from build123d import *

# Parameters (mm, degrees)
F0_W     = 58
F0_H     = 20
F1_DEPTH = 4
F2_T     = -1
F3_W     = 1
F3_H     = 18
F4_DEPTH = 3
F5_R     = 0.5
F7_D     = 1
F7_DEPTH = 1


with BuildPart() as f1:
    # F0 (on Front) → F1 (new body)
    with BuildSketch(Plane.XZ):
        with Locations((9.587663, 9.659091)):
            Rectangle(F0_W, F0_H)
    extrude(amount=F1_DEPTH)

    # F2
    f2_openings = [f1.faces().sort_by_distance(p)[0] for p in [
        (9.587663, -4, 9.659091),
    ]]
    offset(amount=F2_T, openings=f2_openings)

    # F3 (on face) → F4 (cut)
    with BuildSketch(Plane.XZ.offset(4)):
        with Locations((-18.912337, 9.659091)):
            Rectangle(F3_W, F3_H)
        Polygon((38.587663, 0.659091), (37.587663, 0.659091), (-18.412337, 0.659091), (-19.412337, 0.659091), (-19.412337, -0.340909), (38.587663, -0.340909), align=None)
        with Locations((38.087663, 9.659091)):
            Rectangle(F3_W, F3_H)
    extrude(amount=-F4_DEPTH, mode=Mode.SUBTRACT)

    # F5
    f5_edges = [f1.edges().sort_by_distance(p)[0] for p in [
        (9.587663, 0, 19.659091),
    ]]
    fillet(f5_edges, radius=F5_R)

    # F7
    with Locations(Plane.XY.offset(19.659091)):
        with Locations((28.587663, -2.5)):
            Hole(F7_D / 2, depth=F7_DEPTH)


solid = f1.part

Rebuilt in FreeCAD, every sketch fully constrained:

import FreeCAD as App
import Part
import Sketcher
from FreeCAD import Vector
Q = App.Units.Quantity


def edges_at(feature, points):
    """Names of the edges that pass closest to the given points."""
    edges = feature.Shape.Edges
    near = lambda p: min(range(len(edges)), key=lambda i: edges[i].distToShape(Part.Vertex(*p))[0])
    return sorted({f"Edge{near(p) + 1}" for p in points})


def faces_at(feature, points):
    """Names of the faces that lie closest to the given points."""
    faces = feature.Shape.Faces
    near = lambda p: min(range(len(faces)), key=lambda i: faces[i].distToShape(Part.Vertex(*p))[0])
    return sorted({f"Face{near(p) + 1}" for p in points})


def add_polygon(sketch, points):
    """Adds a closed chain of lines whose ends are joined by coincident constraints."""
    first, n = sketch.GeometryCount, len(points)
    for a, b in zip(points, points[1:] + points[:1]):
        sketch.addGeometry(Part.LineSegment(App.Vector(*a, 0), App.Vector(*b, 0)), False)
    for i in range(n):
        sketch.addConstraint(Sketcher.Constraint("Coincident", first + i, 2, first + (i + 1) % n, 1))

doc = App.newDocument("Part")
body = doc.addObject("PartDesign::Body", "Body")

# Sketch on XZ plane
sketch1 = body.newObject("Sketcher::SketchObject", "Sketch")
sketch1.AttachmentSupport = (doc.getObject("XZ_Plane"), [""])
sketch1.MapMode = "FlatFace"
add_polygon(sketch1, [(-19, 20), (-19, 0), (39, 0), (39, 20)])  # lines 0-3
sketch1.addConstraint(Sketcher.Constraint("Vertical", 0))
sketch1.addConstraint(Sketcher.Constraint("Horizontal", 1))
sketch1.addConstraint(Sketcher.Constraint("Vertical", 2))
sketch1.addConstraint(Sketcher.Constraint("Horizontal", 3))
sketch1.addConstraint(Sketcher.Constraint("DistanceX", 1, 1, 1, 2, Q("58 mm")))
sketch1.addConstraint(Sketcher.Constraint("DistanceY", 0, 2, 0, 1, Q("20 mm")))
sketch1.addConstraint(Sketcher.Constraint("DistanceY", 0, 2, -1, 1, Q("0.340909 mm")))
sketch1.addConstraint(Sketcher.Constraint("DistanceX", 0, 2, -1, 1, Q("19.412337 mm")))
pad1 = body.newObject("PartDesign::Pad", "Pad")
pad1.Profile = sketch1
pad1.Length = 4
doc.recompute()

thickness = body.newObject("PartDesign::Thickness", "Thickness")
thickness.Base = (pad1, faces_at(pad1, [(9.588, -4, 9.659)]))
thickness.Value = 1
thickness.Reversed = True
thickness.Join = "Arc"

# Sketch on XZ plane
sketch2 = body.newObject("Sketcher::SketchObject", "Sketch001")
sketch2.AttachmentSupport = (doc.getObject("XZ_Plane"), [""])
sketch2.MapMode = "FlatFace"
sketch2.AttachmentOffset = App.Placement(Vector(0, 0, 4), App.Rotation())
add_polygon(sketch2, [(-19.4, 18.7), (-19.4, -0.3), (38.6, -0.3), (38.6, 18.7), (37.6, 18.7), (37.6, 0.7), (-18.4, 0.7), (-18.4, 18.7)])  # lines 0-7
sketch2.addConstraint(Sketcher.Constraint("Vertical", 0))
sketch2.addConstraint(Sketcher.Constraint("Horizontal", 1))
sketch2.addConstraint(Sketcher.Constraint("Vertical", 2))
sketch2.addConstraint(Sketcher.Constraint("Horizontal", 3))
sketch2.addConstraint(Sketcher.Constraint("Vertical", 4))
sketch2.addConstraint(Sketcher.Constraint("Horizontal", 5))
sketch2.addConstraint(Sketcher.Constraint("Vertical", 6))
sketch2.addConstraint(Sketcher.Constraint("Horizontal", 7))
sketch2.addConstraint(Sketcher.Constraint("Horizontal", 3, 2, 6, 2))
sketch2.addConstraint(Sketcher.Constraint("Equal", 3, 7))
sketch2.addConstraint(Sketcher.Constraint("DistanceX", 1, 1, 1, 2, Q("58 mm")))
sketch2.addConstraint(Sketcher.Constraint("DistanceX", 3, 2, 3, 1, Q("1 mm")))
sketch2.addConstraint(Sketcher.Constraint("DistanceY", 0, 2, 0, 1, Q("19 mm")))
sketch2.addConstraint(Sketcher.Constraint("DistanceY", 4, 2, 4, 1, Q("18 mm")))
sketch2.addConstraint(Sketcher.Constraint("DistanceY", 0, 2, -1, 1, Q("0.340909 mm")))
sketch2.addConstraint(Sketcher.Constraint("DistanceX", 0, 2, -1, 1, Q("19.412337 mm")))
pocket1 = body.newObject("PartDesign::Pocket", "Pocket")
pocket1.Profile = sketch2
pocket1.Length = 3
doc.recompute()

fillet = body.newObject("PartDesign::Fillet", "Fillet")
fillet.Base = (pocket1, edges_at(pocket1, [(9.588, 0, 19.659)]))
fillet.Radius = 0.5

# Sketch on XY plane
sketch3 = body.newObject("Sketcher::SketchObject", "Sketch002")
sketch3.AttachmentSupport = (doc.getObject("XY_Plane"), [""])
sketch3.MapMode = "FlatFace"
sketch3.AttachmentOffset = App.Placement(Vector(0, 0, 19.659091), App.Rotation())
sketch3.addGeometry(Part.Circle(Vector(28.6, -2.5, 0), Vector(0, 0, 1), 0.5), False)
sketch3.addConstraint(Sketcher.Constraint("Diameter", 0, Q("1 mm")))
sketch3.addConstraint(Sketcher.Constraint("DistanceY", 0, 3, -1, 1, Q("2.5 mm")))
sketch3.addConstraint(Sketcher.Constraint("DistanceX", -1, 1, 0, 3, Q("28.587663 mm")))
doc.recompute()
hole = body.newObject("PartDesign::Hole", "Hole")
hole.Profile = sketch3
hole.ThreadType = "None"
hole.Diameter = 1
hole.DepthType = "Dimension"
hole.Depth = 1
hole.DrillPoint = "Flat"

doc.recompute()
